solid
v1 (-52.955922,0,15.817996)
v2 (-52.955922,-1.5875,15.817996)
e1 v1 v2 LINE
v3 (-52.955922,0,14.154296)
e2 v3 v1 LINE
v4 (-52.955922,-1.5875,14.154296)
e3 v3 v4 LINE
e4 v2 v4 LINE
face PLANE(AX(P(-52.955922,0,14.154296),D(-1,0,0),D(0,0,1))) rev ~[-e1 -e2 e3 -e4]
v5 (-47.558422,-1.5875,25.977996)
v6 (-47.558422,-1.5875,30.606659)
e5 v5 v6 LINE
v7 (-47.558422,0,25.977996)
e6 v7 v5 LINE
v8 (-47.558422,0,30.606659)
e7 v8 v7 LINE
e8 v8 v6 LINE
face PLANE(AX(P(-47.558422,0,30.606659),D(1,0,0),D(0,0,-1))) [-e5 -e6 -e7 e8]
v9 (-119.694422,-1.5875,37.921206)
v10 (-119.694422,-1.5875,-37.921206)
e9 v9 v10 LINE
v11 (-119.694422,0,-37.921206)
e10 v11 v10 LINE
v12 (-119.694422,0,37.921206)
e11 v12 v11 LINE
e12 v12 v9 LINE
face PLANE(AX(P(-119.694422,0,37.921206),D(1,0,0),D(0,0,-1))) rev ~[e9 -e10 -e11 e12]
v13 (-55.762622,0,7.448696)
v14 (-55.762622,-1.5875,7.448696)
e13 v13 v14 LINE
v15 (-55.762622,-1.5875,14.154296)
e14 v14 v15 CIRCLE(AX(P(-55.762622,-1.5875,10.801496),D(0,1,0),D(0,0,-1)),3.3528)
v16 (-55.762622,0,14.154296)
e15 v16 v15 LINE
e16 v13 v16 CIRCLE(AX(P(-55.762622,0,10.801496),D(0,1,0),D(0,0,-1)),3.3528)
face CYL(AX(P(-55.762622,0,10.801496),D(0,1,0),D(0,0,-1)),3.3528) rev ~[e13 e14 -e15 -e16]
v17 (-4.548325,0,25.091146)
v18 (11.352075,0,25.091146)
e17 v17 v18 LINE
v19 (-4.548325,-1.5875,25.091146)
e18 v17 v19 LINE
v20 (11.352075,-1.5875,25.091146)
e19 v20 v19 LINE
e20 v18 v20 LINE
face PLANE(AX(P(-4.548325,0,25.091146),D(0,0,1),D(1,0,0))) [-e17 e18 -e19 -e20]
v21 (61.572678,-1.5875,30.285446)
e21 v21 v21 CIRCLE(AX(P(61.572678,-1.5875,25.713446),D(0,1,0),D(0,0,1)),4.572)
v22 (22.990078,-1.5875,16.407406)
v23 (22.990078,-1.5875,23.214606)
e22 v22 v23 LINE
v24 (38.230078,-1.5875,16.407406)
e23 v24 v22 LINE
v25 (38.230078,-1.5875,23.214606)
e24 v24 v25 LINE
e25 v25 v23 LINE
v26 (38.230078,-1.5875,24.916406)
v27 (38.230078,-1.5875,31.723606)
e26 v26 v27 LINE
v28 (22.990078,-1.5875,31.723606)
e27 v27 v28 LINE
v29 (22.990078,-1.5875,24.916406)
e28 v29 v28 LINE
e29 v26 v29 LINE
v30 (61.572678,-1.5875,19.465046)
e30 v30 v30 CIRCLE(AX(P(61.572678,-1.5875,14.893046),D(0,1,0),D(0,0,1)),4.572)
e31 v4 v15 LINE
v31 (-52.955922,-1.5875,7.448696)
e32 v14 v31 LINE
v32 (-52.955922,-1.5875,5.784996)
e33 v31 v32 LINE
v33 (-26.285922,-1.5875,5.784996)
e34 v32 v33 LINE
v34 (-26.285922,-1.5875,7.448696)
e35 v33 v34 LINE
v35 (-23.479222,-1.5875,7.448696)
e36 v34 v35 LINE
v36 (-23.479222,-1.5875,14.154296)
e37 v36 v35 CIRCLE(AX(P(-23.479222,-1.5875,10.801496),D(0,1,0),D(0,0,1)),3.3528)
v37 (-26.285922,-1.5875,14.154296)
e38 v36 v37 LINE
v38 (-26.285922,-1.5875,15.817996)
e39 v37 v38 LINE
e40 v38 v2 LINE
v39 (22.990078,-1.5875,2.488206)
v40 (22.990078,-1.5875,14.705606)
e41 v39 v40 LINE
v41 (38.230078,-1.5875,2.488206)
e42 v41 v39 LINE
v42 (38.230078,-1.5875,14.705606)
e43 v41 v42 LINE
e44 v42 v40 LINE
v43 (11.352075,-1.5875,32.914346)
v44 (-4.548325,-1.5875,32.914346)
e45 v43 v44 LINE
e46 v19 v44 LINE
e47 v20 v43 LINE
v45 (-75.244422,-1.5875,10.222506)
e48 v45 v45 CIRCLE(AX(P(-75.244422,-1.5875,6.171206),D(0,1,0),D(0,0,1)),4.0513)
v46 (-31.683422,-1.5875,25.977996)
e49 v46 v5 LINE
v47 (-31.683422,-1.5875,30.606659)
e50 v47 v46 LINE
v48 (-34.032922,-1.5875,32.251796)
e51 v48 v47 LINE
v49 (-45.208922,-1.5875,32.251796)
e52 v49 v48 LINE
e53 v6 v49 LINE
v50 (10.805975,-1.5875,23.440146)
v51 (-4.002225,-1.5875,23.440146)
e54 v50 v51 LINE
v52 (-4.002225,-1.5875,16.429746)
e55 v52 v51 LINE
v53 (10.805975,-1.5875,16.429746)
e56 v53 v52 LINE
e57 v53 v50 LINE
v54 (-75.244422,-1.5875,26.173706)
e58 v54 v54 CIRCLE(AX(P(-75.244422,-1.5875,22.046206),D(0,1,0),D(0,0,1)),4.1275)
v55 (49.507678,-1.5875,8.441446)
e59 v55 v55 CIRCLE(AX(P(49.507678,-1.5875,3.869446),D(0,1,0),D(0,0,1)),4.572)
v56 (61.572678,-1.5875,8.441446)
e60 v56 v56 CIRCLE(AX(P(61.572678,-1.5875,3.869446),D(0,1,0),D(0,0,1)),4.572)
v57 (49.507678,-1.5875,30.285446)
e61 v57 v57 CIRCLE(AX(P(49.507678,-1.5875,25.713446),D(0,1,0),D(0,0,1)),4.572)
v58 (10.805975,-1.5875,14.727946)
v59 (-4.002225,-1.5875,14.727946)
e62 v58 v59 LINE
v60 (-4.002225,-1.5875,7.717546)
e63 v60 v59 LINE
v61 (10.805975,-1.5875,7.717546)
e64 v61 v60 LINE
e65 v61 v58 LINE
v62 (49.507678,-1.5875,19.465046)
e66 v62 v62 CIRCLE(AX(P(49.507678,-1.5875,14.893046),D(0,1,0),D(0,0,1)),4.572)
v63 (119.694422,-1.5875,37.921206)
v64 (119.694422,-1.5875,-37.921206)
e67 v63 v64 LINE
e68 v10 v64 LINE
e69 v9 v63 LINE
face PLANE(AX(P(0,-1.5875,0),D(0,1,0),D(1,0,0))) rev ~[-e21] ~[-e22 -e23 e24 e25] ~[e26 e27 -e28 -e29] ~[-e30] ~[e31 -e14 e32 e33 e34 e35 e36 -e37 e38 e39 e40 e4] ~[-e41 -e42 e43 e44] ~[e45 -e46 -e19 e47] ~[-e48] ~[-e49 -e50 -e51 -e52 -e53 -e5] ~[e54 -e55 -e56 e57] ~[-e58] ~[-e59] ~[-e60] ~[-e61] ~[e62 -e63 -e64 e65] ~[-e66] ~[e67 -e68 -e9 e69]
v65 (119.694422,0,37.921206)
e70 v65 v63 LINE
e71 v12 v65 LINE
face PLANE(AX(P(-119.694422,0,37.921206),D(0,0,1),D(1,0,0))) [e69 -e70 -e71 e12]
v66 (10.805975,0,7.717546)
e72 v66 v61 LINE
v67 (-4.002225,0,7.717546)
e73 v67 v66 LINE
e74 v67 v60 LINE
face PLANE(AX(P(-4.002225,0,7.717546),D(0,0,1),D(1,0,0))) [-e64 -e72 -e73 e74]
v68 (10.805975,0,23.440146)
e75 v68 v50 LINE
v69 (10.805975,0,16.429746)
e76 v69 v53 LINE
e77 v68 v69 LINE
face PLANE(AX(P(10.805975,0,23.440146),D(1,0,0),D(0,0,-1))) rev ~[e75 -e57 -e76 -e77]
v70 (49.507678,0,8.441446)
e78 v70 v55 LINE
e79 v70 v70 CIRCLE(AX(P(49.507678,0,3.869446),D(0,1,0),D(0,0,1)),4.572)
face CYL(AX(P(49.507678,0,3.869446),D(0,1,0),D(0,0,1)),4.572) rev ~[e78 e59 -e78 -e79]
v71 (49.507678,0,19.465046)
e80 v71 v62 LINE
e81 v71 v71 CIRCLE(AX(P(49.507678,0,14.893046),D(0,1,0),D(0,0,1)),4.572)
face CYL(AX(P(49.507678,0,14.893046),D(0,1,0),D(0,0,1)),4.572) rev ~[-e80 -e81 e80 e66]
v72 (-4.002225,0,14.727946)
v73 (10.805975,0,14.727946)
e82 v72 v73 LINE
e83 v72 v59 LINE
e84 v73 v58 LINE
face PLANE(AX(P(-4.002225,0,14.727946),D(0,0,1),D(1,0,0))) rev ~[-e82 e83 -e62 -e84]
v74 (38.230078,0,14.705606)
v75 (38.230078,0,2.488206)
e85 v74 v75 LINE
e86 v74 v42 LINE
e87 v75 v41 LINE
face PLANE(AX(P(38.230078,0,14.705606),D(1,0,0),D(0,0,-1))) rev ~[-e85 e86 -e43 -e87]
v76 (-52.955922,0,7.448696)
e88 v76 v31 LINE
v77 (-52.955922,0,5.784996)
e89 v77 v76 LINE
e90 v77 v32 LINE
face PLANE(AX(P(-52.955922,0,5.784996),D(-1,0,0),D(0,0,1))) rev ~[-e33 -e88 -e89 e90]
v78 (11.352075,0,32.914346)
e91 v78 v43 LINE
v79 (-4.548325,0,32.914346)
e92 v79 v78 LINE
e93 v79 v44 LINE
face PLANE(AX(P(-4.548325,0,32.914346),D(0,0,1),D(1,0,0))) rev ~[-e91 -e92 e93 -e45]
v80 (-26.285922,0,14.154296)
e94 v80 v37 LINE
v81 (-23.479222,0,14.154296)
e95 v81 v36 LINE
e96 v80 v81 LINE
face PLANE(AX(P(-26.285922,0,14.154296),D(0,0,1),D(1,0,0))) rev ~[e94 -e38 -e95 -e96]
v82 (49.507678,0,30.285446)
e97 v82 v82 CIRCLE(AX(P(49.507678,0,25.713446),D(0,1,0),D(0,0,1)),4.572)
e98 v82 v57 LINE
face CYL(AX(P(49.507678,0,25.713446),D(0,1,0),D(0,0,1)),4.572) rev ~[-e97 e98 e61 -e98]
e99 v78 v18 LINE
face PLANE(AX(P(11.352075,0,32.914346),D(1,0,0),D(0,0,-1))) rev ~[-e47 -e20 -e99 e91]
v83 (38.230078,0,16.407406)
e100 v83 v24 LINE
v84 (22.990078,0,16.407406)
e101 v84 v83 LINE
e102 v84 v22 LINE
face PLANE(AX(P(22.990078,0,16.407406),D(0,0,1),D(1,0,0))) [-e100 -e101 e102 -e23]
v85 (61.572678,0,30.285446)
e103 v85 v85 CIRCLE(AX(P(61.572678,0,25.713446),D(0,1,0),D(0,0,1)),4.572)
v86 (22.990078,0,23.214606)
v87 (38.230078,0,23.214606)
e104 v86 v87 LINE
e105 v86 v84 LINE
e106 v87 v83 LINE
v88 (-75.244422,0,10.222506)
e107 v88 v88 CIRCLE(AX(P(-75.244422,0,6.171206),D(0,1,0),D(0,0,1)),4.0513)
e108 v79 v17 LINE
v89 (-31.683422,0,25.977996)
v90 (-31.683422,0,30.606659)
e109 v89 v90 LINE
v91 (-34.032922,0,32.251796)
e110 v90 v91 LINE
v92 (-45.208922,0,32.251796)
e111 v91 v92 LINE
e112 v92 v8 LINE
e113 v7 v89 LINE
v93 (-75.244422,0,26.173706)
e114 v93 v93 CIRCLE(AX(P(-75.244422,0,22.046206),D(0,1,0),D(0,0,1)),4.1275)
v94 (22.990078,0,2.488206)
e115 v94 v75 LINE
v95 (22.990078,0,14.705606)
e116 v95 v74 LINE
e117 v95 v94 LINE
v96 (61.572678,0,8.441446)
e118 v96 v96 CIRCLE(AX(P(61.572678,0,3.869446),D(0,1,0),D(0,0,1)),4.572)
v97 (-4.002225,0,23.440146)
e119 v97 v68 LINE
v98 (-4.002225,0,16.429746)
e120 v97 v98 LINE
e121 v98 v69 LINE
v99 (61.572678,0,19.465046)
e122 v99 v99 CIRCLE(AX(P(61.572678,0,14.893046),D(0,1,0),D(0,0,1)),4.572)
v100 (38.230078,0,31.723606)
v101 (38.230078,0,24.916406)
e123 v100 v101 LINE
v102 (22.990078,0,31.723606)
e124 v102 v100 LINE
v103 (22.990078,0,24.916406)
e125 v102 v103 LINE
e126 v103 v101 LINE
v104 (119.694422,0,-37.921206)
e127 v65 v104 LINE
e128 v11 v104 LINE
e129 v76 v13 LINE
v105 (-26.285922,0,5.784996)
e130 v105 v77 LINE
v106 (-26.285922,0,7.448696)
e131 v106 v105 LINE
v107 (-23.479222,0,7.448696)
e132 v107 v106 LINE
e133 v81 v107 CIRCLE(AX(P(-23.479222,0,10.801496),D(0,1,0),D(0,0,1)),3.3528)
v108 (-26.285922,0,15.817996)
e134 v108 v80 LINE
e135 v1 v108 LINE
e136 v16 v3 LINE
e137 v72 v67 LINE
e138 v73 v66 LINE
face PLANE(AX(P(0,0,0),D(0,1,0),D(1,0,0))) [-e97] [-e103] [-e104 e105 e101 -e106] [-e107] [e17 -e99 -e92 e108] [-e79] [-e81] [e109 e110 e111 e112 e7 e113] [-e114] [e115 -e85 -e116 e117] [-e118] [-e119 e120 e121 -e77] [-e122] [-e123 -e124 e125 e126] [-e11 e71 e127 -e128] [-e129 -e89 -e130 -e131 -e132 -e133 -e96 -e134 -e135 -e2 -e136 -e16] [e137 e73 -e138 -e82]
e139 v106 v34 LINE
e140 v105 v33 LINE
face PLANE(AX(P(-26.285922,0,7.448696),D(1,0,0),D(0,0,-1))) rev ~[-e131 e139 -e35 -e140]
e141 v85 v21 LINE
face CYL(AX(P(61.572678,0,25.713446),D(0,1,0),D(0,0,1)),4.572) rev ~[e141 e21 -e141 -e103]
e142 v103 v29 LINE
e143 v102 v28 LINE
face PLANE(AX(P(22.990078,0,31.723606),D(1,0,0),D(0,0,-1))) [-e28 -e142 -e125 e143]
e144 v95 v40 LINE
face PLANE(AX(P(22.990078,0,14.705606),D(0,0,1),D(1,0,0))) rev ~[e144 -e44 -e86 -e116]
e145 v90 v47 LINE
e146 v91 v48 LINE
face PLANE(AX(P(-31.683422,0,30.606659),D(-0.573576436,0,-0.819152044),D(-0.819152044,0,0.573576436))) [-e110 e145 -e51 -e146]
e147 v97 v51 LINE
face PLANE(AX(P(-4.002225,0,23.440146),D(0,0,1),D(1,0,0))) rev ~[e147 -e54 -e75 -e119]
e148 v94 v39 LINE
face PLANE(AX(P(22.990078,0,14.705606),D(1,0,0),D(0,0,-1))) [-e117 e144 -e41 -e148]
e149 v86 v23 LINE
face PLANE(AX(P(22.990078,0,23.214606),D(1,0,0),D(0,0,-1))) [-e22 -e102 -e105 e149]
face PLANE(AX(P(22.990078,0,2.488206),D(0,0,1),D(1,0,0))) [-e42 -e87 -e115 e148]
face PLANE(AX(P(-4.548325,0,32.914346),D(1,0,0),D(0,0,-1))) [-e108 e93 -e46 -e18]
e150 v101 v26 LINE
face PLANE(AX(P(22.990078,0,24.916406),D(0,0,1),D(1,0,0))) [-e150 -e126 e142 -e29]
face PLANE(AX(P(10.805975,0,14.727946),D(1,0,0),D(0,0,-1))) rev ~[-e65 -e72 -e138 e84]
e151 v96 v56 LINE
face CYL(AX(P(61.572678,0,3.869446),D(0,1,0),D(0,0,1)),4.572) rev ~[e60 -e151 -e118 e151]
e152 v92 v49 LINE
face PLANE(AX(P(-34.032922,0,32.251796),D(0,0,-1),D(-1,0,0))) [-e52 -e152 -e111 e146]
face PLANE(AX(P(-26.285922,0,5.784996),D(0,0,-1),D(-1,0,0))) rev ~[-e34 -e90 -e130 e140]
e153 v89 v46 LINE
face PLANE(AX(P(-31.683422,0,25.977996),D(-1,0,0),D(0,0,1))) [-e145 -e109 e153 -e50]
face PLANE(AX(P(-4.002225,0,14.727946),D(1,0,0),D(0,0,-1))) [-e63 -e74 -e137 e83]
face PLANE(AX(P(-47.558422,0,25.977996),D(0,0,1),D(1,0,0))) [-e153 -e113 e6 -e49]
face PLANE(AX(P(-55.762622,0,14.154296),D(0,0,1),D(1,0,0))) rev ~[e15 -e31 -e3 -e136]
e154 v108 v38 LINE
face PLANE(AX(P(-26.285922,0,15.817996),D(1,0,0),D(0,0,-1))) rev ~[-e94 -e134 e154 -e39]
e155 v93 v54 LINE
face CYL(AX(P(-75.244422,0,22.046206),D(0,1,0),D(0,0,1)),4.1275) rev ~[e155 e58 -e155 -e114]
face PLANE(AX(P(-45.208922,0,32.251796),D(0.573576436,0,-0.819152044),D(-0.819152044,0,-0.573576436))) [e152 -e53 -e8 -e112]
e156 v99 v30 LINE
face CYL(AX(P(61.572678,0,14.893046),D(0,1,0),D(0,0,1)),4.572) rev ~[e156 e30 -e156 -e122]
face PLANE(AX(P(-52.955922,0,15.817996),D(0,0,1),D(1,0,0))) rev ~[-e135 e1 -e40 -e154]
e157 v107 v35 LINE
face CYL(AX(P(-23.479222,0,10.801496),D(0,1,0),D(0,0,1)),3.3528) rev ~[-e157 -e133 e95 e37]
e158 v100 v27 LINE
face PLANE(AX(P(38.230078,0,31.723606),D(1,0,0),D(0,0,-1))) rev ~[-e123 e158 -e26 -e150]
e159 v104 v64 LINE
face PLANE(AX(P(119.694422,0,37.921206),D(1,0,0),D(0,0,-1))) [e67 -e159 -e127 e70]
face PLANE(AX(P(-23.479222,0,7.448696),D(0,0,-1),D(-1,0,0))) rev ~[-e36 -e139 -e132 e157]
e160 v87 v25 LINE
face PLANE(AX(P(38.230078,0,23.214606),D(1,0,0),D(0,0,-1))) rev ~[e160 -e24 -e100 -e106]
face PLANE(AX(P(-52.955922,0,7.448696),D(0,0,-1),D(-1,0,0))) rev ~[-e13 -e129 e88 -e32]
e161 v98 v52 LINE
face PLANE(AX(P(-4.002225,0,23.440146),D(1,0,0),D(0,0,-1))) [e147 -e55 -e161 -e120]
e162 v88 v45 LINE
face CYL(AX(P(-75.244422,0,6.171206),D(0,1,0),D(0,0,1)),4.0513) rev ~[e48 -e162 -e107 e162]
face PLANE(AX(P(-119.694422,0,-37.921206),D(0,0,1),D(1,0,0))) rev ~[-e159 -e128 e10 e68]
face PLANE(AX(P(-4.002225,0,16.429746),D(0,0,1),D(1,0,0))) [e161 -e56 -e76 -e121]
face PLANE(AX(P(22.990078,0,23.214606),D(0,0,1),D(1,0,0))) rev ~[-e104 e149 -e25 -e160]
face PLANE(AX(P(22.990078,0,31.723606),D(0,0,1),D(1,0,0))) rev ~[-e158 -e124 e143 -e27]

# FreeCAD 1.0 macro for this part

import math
import FreeCAD as App
import Part
import Sketcher
Q = App.Units.Quantity

doc = App.newDocument("Part")
body = doc.addObject("PartDesign::Body", "Body")

# Sketch on XZ plane
sketch1 = body.newObject("Sketcher::SketchObject", "Sketch")
sketch1.AttachmentSupport = (doc.getObject("XZ_Plane"), [""])
sketch1.MapMode = "FlatFace"
sketch1.addGeometry([
    Part.LineSegment(App.Vector(-120, -38, 0), App.Vector(-120, 38, 0)),
    Part.LineSegment(App.Vector(-120, 38, 0), App.Vector(120, 38, 0)),
    Part.LineSegment(App.Vector(120, 38, 0), App.Vector(120, -38, 0)),
    Part.LineSegment(App.Vector(120, -38, 0), App.Vector(-120, -38, 0)),
], False)
sketch1.addConstraint([
    Sketcher.Constraint("Coincident", 0, 2, 1, 1),
    Sketcher.Constraint("Coincident", 1, 2, 2, 1),
    Sketcher.Constraint("Coincident", 2, 2, 3, 1),
    Sketcher.Constraint("Coincident", 3, 2, 0, 1),
    Sketcher.Constraint("Vertical", 0),
    Sketcher.Constraint("Horizontal", 1),
    Sketcher.Constraint("Vertical", 2),
    Sketcher.Constraint("Horizontal", 3),
    Sketcher.Constraint("Symmetric", 0, 2, 2, 2, -1, 1),
    Sketcher.Constraint("DistanceY", 0, 1, 0, 2, 75.842411),
    Sketcher.Constraint("DistanceX", 1, 1, 1, 2, 239.388844),
])
pad1 = body.newObject("PartDesign::Pad", "Pad")
pad1.Profile = sketch1
pad1.Length = Q("0.0625 in")

# Sketch on XZ plane
sketch2 = body.newObject("Sketcher::SketchObject", "Sketch001")
sketch2.AttachmentSupport = (doc.getObject("XZ_Plane"), [""])
sketch2.MapMode = "FlatFace"
sketch2.addGeometry(Part.Circle(App.Vector(-75.2, 22, 0), App.Vector(0, 0, 1), 4.1), False)
sketch2.addConstraint([
    Sketcher.Constraint("Diameter", 0, Q("0.325 in")),
    Sketcher.Constraint("DistanceX", 0, 3, -1, 1, 75.244422),
    Sketcher.Constraint("DistanceY", -1, 1, 0, 3, 22.046206),
])
pocket1 = body.newObject("PartDesign::Pocket", "Pocket")
pocket1.Profile = sketch2
pocket1.Type = "UpToFirst"
pocket1.Reversed = True

# Sketch on XZ plane
sketch3 = body.newObject("Sketcher::SketchObject", "Sketch002")
sketch3.AttachmentSupport = (doc.getObject("XZ_Plane"), [""])
sketch3.MapMode = "FlatFace"
sketch3.addGeometry(Part.Circle(App.Vector(49.5, 25.7, 0), App.Vector(0, 0, 1), 4.6), False)
sketch3.addConstraint([
    Sketcher.Constraint("Diameter", 0, Q("0.36 in")),
    Sketcher.Constraint("DistanceX", -1, 1, 0, 3, 49.507678),
    Sketcher.Constraint("DistanceY", -1, 1, 0, 3, 25.713446),
])
pocket2 = body.newObject("PartDesign::Pocket", "Pocket001")
pocket2.Profile = sketch3
pocket2.Type = "UpToFirst"
pocket2.Reversed = True

# Sketch on XZ plane
sketch4 = body.newObject("Sketcher::SketchObject", "Sketch003")
sketch4.AttachmentSupport = (doc.getObject("XZ_Plane"), [""])
sketch4.MapMode = "FlatFace"
sketch4.addGeometry(Part.Circle(App.Vector(-75.2, 6.2, 0), App.Vector(0, 0, 1), 4.1), False)
sketch4.addConstraint([
    Sketcher.Constraint("Diameter", 0, Q("0.319 in")),
    Sketcher.Constraint("DistanceX", 0, 3, -1, 1, 75.244422),
    Sketcher.Constraint("DistanceY", -1, 1, 0, 3, 6.171206),
])
pocket3 = body.newObject("PartDesign::Pocket", "Pocket002")
pocket3.Profile = sketch4
pocket3.Type = "UpToFirst"
pocket3.Reversed = True

# Sketch on XZ plane
sketch5 = body.newObject("Sketcher::SketchObject", "Sketch004")
sketch5.AttachmentSupport = (doc.getObject("XZ_Plane"), [""])
sketch5.MapMode = "FlatFace"
sketch5.addGeometry(Part.Circle(App.Vector(49.5, 3.9, 0), App.Vector(0, 0, 1), 4.6), False)
sketch5.addConstraint([
    Sketcher.Constraint("Diameter", 0, Q("0.36 in")),
    Sketcher.Constraint("DistanceX", -1, 1, 0, 3, 49.507678),
    Sketcher.Constraint("DistanceY", -1, 1, 0, 3, 3.869446),
])
pocket4 = body.newObject("PartDesign::Pocket", "Pocket003")
pocket4.Profile = sketch5
pocket4.Type = "UpToFirst"
pocket4.Reversed = True

# Sketch on XZ plane
sketch6 = body.newObject("Sketcher::SketchObject", "Sketch005")
sketch6.AttachmentSupport = (doc.getObject("XZ_Plane"), [""])
sketch6.MapMode = "FlatFace"
sketch6.addGeometry(Part.Circle(App.Vector(61.6, 3.9, 0), App.Vector(0, 0, 1), 4.6), False)
sketch6.addConstraint([
    Sketcher.Constraint("Diameter", 0, Q("0.36 in")),
    Sketcher.Constraint("DistanceX", -1, 1, 0, 3, 61.572678),
    Sketcher.Constraint("DistanceY", -1, 1, 0, 3, 3.869446),
])
pocket5 = body.newObject("PartDesign::Pocket", "Pocket004")
pocket5.Profile = sketch6
pocket5.Type = "UpToFirst"
pocket5.Reversed = True

# Sketch on XZ plane
sketch7 = body.newObject("Sketcher::SketchObject", "Sketch006")
sketch7.AttachmentSupport = (doc.getObject("XZ_Plane"), [""])
sketch7.MapMode = "FlatFace"
sketch7.addGeometry(Part.Circle(App.Vector(49.5, 14.9, 0), App.Vector(0, 0, 1), 4.6), False)
sketch7.addConstraint([
    Sketcher.Constraint("Diameter", 0, Q("0.36 in")),
    Sketcher.Constraint("DistanceX", -1, 1, 0, 3, 49.507678),
    Sketcher.Constraint("DistanceY", -1, 1, 0, 3, 14.893046),
])
pocket6 = body.newObject("PartDesign::Pocket", "Pocket005")
pocket6.Profile = sketch7
pocket6.Type = "UpToFirst"
pocket6.Reversed = True

# Sketch on XZ plane
sketch8 = body.newObject("Sketcher::SketchObject", "Sketch007")
sketch8.AttachmentSupport = (doc.getObject("XZ_Plane"), [""])
sketch8.MapMode = "FlatFace"
sketch8.addGeometry(Part.Circle(App.Vector(61.6, 14.9, 0), App.Vector(0, 0, 1), 4.6), False)
sketch8.addConstraint([
    Sketcher.Constraint("Diameter", 0, Q("0.36 in")),
    Sketcher.Constraint("DistanceX", -1, 1, 0, 3, 61.572678),
    Sketcher.Constraint("DistanceY", -1, 1, 0, 3, 14.893046),
])
pocket7 = body.newObject("PartDesign::Pocket", "Pocket006")
pocket7.Profile = sketch8
pocket7.Type = "UpToFirst"
pocket7.Reversed = True

# Sketch on XZ plane
sketch9 = body.newObject("Sketcher::SketchObject", "Sketch008")
sketch9.AttachmentSupport = (doc.getObject("XZ_Plane"), [""])
sketch9.MapMode = "FlatFace"
sketch9.addGeometry(Part.Circle(App.Vector(61.6, 25.7, 0), App.Vector(0, 0, 1), 4.6), False)
sketch9.addConstraint([
    Sketcher.Constraint("Diameter", 0, Q("0.36 in")),
    Sketcher.Constraint("DistanceX", -1, 1, 0, 3, 61.572678),
    Sketcher.Constraint("DistanceY", -1, 1, 0, 3, 25.713446),
])
pocket8 = body.newObject("PartDesign::Pocket", "Pocket007")
pocket8.Profile = sketch9
pocket8.Type = "UpToFirst"
pocket8.Reversed = True

# Sketch on XZ plane
sketch10 = body.newObject("Sketcher::SketchObject", "Sketch009")
sketch10.AttachmentSupport = (doc.getObject("XZ_Plane"), [""])
sketch10.MapMode = "FlatFace"
sketch10.addGeometry([
    Part.LineSegment(App.Vector(-31.7, 26, 0), App.Vector(-47.6, 26, 0)),  # 0
    Part.LineSegment(App.Vector(-47.6, 26, 0), App.Vector(-47.6, 30.6, 0)),  # 1
    Part.LineSegment(App.Vector(-47.6, 30.6, 0), App.Vector(-45.2, 32.3, 0)),  # 2
    Part.LineSegment(App.Vector(-45.2, 32.3, 0), App.Vector(-34, 32.3, 0)),  # 3
    Part.LineSegment(App.Vector(-34, 32.3, 0), App.Vector(-31.7, 30.6, 0)),  # 4
    Part.LineSegment(App.Vector(-31.7, 30.6, 0), App.Vector(-31.7, 26, 0)),  # 5
], False)
sketch10.addConstraint([
    Sketcher.Constraint("Coincident", 0, 2, 1, 1),
    Sketcher.Constraint("Coincident", 1, 2, 2, 1),
    Sketcher.Constraint("Coincident", 2, 2, 3, 1),
    Sketcher.Constraint("Coincident", 3, 2, 4, 1),
    Sketcher.Constraint("Coincident", 4, 2, 5, 1),
    Sketcher.Constraint("Coincident", 5, 2, 0, 1),
    Sketcher.Constraint("Horizontal", 0),
    Sketcher.Constraint("Vertical", 1),
    Sketcher.Constraint("Horizontal", 3),
    Sketcher.Constraint("Vertical", 5),
    Sketcher.Constraint("Horizontal", 1, 2, 4, 2),
    Sketcher.Constraint("Equal", 2, 4),
    Sketcher.Constraint("Angle", 2, Q("35 deg")),
    Sketcher.Constraint("DistanceX", 3, 1, 3, 2, Q("0.44 in")),
    Sketcher.Constraint("DistanceX", 0, 2, 0, 1, Q("0.625 in")),
    Sketcher.Constraint("DistanceY", 0, 2, 2, 2, Q("0.247 in")),
    Sketcher.Constraint("DistanceX", 0, 2, -1, 1, 47.558422),
    Sketcher.Constraint("DistanceY", -1, 1, 1, 2, 30.606659),
])
pocket9 = body.newObject("PartDesign::Pocket", "Pocket008")
pocket9.Profile = sketch10
pocket9.Type = "UpToFirst"
pocket9.Reversed = True

# Sketch on XZ plane
sketch11 = body.newObject("Sketcher::SketchObject", "Sketch010")
sketch11.AttachmentSupport = (doc.getObject("XZ_Plane"), [""])
sketch11.MapMode = "FlatFace"
sketch11.addGeometry([
    Part.LineSegment(App.Vector(-53, 14.2, 0), App.Vector(-53, 15.8, 0)),  # 0
    Part.LineSegment(App.Vector(-53, 15.8, 0), App.Vector(-26.3, 15.8, 0)),  # 1
    Part.LineSegment(App.Vector(-26.3, 15.8, 0), App.Vector(-26.3, 14.2, 0)),  # 2
    Part.LineSegment(App.Vector(-26.3, 14.2, 0), App.Vector(-23.5, 14.2, 0)),  # 3
    Part.ArcOfCircle(Part.Circle(App.Vector(-23.5, 10.8, 0), App.Vector(0, 0, 1), 3.4), math.radians(-90), math.radians(90)),  # 4
    Part.LineSegment(App.Vector(-23.5, 7.4, 0), App.Vector(-26.3, 7.4, 0)),  # 5
    Part.LineSegment(App.Vector(-26.3, 7.4, 0), App.Vector(-26.3, 5.8, 0)),  # 6
    Part.LineSegment(App.Vector(-26.3, 5.8, 0), App.Vector(-53, 5.8, 0)),  # 7
    Part.LineSegment(App.Vector(-53, 5.8, 0), App.Vector(-53, 7.4, 0)),  # 8
    Part.LineSegment(App.Vector(-53, 7.4, 0), App.Vector(-55.8, 7.4, 0)),  # 9
    Part.ArcOfCircle(Part.Circle(App.Vector(-55.8, 10.8, 0), App.Vector(0, 0, 1), 3.4), math.radians(90), math.radians(270)),  # 10
    Part.LineSegment(App.Vector(-55.8, 14.2, 0), App.Vector(-53, 14.2, 0)),  # 11
], False)
sketch11.addConstraint([
    Sketcher.Constraint("Coincident", 0, 2, 1, 1),
    Sketcher.Constraint("Coincident", 1, 2, 2, 1),
    Sketcher.Constraint("Coincident", 2, 2, 3, 1),
    Sketcher.Constraint("Tangent", 3, 2, 4, 2),
    Sketcher.Constraint("Tangent", 4, 1, 5, 1),
    Sketcher.Constraint("Coincident", 5, 2, 6, 1),
    Sketcher.Constraint("Coincident", 6, 2, 7, 1),
    Sketcher.Constraint("Coincident", 7, 2, 8, 1),
    Sketcher.Constraint("Coincident", 8, 2, 9, 1),
    Sketcher.Constraint("Tangent", 9, 2, 10, 2),
    Sketcher.Constraint("Tangent", 10, 1, 11, 1),
    Sketcher.Constraint("Coincident", 11, 2, 0, 1),
    Sketcher.Constraint("Vertical", 0),
    Sketcher.Constraint("Horizontal", 1),
    Sketcher.Constraint("Vertical", 2),
    Sketcher.Constraint("Horizontal", 3),
    Sketcher.Constraint("Horizontal", 5),
    Sketcher.Constraint("Vertical", 6),
    Sketcher.Constraint("Horizontal", 7),
    Sketcher.Constraint("Vertical", 8),
    Sketcher.Constraint("Horizontal", 9),
    Sketcher.Constraint("Horizontal", 11),
    Sketcher.Constraint("Equal", 4, 10),
    Sketcher.Constraint("Horizontal", 4, 3, 10, 3),
    Sketcher.Constraint("Vertical", 2, 2, 5, 2),
    Sketcher.Constraint("Vertical", 0, 2, 7, 2),
    Sketcher.Constraint("Equal", 5, 9),
    Sketcher.Constraint("Equal", 2, 6),
    Sketcher.Constraint("Radius", 4, Q("0.132 in")),
    Sketcher.Constraint("DistanceX", 1, 1, 1, 2, Q("1.05 in")),
    Sketcher.Constraint("DistanceX", 3, 1, 3, 2, Q("0.1105 in")),
    Sketcher.Constraint("DistanceY", 0, 1, 0, 2, Q("0.0655 in")),
    Sketcher.Constraint("DistanceX", 4, 3, -1, 1, 23.479222),
    Sketcher.Constraint("DistanceY", -1, 1, 4, 3, 10.801496),
])
pocket10 = body.newObject("PartDesign::Pocket", "Pocket009")
pocket10.Profile = sketch11
pocket10.Type = "UpToFirst"
pocket10.Reversed = True

# Sketch on XZ plane
sketch12 = body.newObject("Sketcher::SketchObject", "Sketch011")
sketch12.AttachmentSupport = (doc.getObject("XZ_Plane"), [""])
sketch12.MapMode = "FlatFace"
sketch12.addGeometry([
    Part.LineSegment(App.Vector(-4, 8, 0), App.Vector(-4, 15, 0)),
    Part.LineSegment(App.Vector(-4, 15, 0), App.Vector(11, 15, 0)),
    Part.LineSegment(App.Vector(11, 15, 0), App.Vector(11, 8, 0)),
    Part.LineSegment(App.Vector(11, 8, 0), App.Vector(-4, 8, 0)),
], False)
sketch12.addConstraint([
    Sketcher.Constraint("Coincident", 0, 2, 1, 1),
    Sketcher.Constraint("Coincident", 1, 2, 2, 1),
    Sketcher.Constraint("Coincident", 2, 2, 3, 1),
    Sketcher.Constraint("Coincident", 3, 2, 0, 1),
    Sketcher.Constraint("Vertical", 0),
    Sketcher.Constraint("Horizontal", 1),
    Sketcher.Constraint("Vertical", 2),
    Sketcher.Constraint("Horizontal", 3),
    Sketcher.Constraint("DistanceX", 1, 1, 1, 2, Q("0.583 in")),
    Sketcher.Constraint("DistanceY", 0, 1, 0, 2, Q("0.276 in")),
    Sketcher.Constraint("DistanceX", 0, 2, -1, 1, 4.002225),
    Sketcher.Constraint("DistanceY", -1, 1, 0, 2, 14.727946),
])
pocket11 = body.newObject("PartDesign::Pocket", "Pocket010")
pocket11.Profile = sketch12
pocket11.Type = "UpToFirst"
pocket11.Reversed = True

# Sketch on XZ plane
sketch13 = body.newObject("Sketcher::SketchObject", "Sketch012")
sketch13.AttachmentSupport = (doc.getObject("XZ_Plane"), [""])
sketch13.MapMode = "FlatFace"
sketch13.addGeometry([
    Part.LineSegment(App.Vector(-4, 16, 0), App.Vector(-4, 23, 0)),
    Part.LineSegment(App.Vector(-4, 23, 0), App.Vector(11, 23, 0)),
    Part.LineSegment(App.Vector(11, 23, 0), App.Vector(11, 16, 0)),
    Part.LineSegment(App.Vector(11, 16, 0), App.Vector(-4, 16, 0)),
], False)
sketch13.addConstraint([
    Sketcher.Constraint("Coincident", 0, 2, 1, 1),
    Sketcher.Constraint("Coincident", 1, 2, 2, 1),
    Sketcher.Constraint("Coincident", 2, 2, 3, 1),
    Sketcher.Constraint("Coincident", 3, 2, 0, 1),
    Sketcher.Constraint("Vertical", 0),
    Sketcher.Constraint("Horizontal", 1),
    Sketcher.Constraint("Vertical", 2),
    Sketcher.Constraint("Horizontal", 3),
    Sketcher.Constraint("DistanceX", 1, 1, 1, 2, Q("0.583 in")),
    Sketcher.Constraint("DistanceY", 0, 1, 0, 2, Q("0.276 in")),
    Sketcher.Constraint("DistanceX", 0, 2, -1, 1, 4.002225),
    Sketcher.Constraint("DistanceY", -1, 1, 0, 2, 23.440146),
])
pocket12 = body.newObject("PartDesign::Pocket", "Pocket011")
pocket12.Profile = sketch13
pocket12.Type = "UpToFirst"
pocket12.Reversed = True

# Sketch on XZ plane
sketch14 = body.newObject("Sketcher::SketchObject", "Sketch013")
sketch14.AttachmentSupport = (doc.getObject("XZ_Plane"), [""])
sketch14.MapMode = "FlatFace"
sketch14.addGeometry([
    Part.LineSegment(App.Vector(-5, 25, 0), App.Vector(-5, 33, 0)),
    Part.LineSegment(App.Vector(-5, 33, 0), App.Vector(11, 33, 0)),
    Part.LineSegment(App.Vector(11, 33, 0), App.Vector(11, 25, 0)),
    Part.LineSegment(App.Vector(11, 25, 0), App.Vector(-5, 25, 0)),
], False)
sketch14.addConstraint([
    Sketcher.Constraint("Coincident", 0, 2, 1, 1),
    Sketcher.Constraint("Coincident", 1, 2, 2, 1),
    Sketcher.Constraint("Coincident", 2, 2, 3, 1),
    Sketcher.Constraint("Coincident", 3, 2, 0, 1),
    Sketcher.Constraint("Vertical", 0),
    Sketcher.Constraint("Horizontal", 1),
    Sketcher.Constraint("Vertical", 2),
    Sketcher.Constraint("Horizontal", 3),
    Sketcher.Constraint("DistanceX", 1, 1, 1, 2, Q("0.626 in")),
    Sketcher.Constraint("DistanceY", 0, 1, 0, 2, Q("0.308 in")),
    Sketcher.Constraint("DistanceX", 0, 2, -1, 1, 4.548325),
    Sketcher.Constraint("DistanceY", -1, 1, 0, 2, 32.914346),
])
pocket13 = body.newObject("PartDesign::Pocket", "Pocket012")
pocket13.Profile = sketch14
pocket13.Type = "UpToFirst"
pocket13.Reversed = True

# Sketch on XZ plane
sketch15 = body.newObject("Sketcher::SketchObject", "Sketch014")
sketch15.AttachmentSupport = (doc.getObject("XZ_Plane"), [""])
sketch15.MapMode = "FlatFace"
sketch15.addGeometry([
    Part.LineSegment(App.Vector(23, 2, 0), App.Vector(23, 15, 0)),
    Part.LineSegment(App.Vector(23, 15, 0), App.Vector(38, 15, 0)),
    Part.LineSegment(App.Vector(38, 15, 0), App.Vector(38, 2, 0)),
    Part.LineSegment(App.Vector(38, 2, 0), App.Vector(23, 2, 0)),
], False)
sketch15.addConstraint([
    Sketcher.Constraint("Coincident", 0, 2, 1, 1),
    Sketcher.Constraint("Coincident", 1, 2, 2, 1),
    Sketcher.Constraint("Coincident", 2, 2, 3, 1),
    Sketcher.Constraint("Coincident", 3, 2, 0, 1),
    Sketcher.Constraint("Vertical", 0),
    Sketcher.Constraint("Horizontal", 1),
    Sketcher.Constraint("Vertical", 2),
    Sketcher.Constraint("Horizontal", 3),
    Sketcher.Constraint("DistanceX", 1, 1, 1, 2, Q("0.6 in")),
    Sketcher.Constraint("DistanceY", 0, 1, 0, 2, Q("0.481 in")),
    Sketcher.Constraint("DistanceX", -1, 1, 0, 2, 22.990078),
    Sketcher.Constraint("DistanceY", -1, 1, 0, 2, 14.705606),
])
pocket14 = body.newObject("PartDesign::Pocket", "Pocket013")
pocket14.Profile = sketch15
pocket14.Type = "UpToFirst"
pocket14.Reversed = True

# Sketch on XZ plane
sketch16 = body.newObject("Sketcher::SketchObject", "Sketch015")
sketch16.AttachmentSupport = (doc.getObject("XZ_Plane"), [""])
sketch16.MapMode = "FlatFace"
sketch16.addGeometry([
    Part.LineSegment(App.Vector(23, 16, 0), App.Vector(23, 23, 0)),
    Part.LineSegment(App.Vector(23, 23, 0), App.Vector(38, 23, 0)),
    Part.LineSegment(App.Vector(38, 23, 0), App.Vector(38, 16, 0)),
    Part.LineSegment(App.Vector(38, 16, 0), App.Vector(23, 16, 0)),
], False)
sketch16.addConstraint([
    Sketcher.Constraint("Coincident", 0, 2, 1, 1),
    Sketcher.Constraint("Coincident", 1, 2, 2, 1),
    Sketcher.Constraint("Coincident", 2, 2, 3, 1),
    Sketcher.Constraint("Coincident", 3, 2, 0, 1),
    Sketcher.Constraint("Vertical", 0),
    Sketcher.Constraint("Horizontal", 1),
    Sketcher.Constraint("Vertical", 2),
    Sketcher.Constraint("Horizontal", 3),
    Sketcher.Constraint("DistanceX", 1, 1, 1, 2, Q("0.6 in")),
    Sketcher.Constraint("DistanceY", 0, 1, 0, 2, Q("0.268 in")),
    Sketcher.Constraint("DistanceX", -1, 1, 0, 2, 22.990078),
    Sketcher.Constraint("DistanceY", -1, 1, 0, 2, 23.214606),
])
pocket15 = body.newObject("PartDesign::Pocket", "Pocket014")
pocket15.Profile = sketch16
pocket15.Type = "UpToFirst"
pocket15.Reversed = True

# Sketch on XZ plane
sketch17 = body.newObject("Sketcher::SketchObject", "Sketch016")
sketch17.AttachmentSupport = (doc.getObject("XZ_Plane"), [""])
sketch17.MapMode = "FlatFace"
sketch17.addGeometry([
    Part.LineSegment(App.Vector(23, 25, 0), App.Vector(23, 32, 0)),
    Part.LineSegment(App.Vector(23, 32, 0), App.Vector(38, 32, 0)),
    Part.LineSegment(App.Vector(38, 32, 0), App.Vector(38, 25, 0)),
    Part.LineSegment(App.Vector(38, 25, 0), App.Vector(23, 25, 0)),
], False)
sketch17.addConstraint([
    Sketcher.Constraint("Coincident", 0, 2, 1, 1),
    Sketcher.Constraint("Coincident", 1, 2, 2, 1),
    Sketcher.Constraint("Coincident", 2, 2, 3, 1),
    Sketcher.Constraint("Coincident", 3, 2, 0, 1),
    Sketcher.Constraint("Vertical", 0),
    Sketcher.Constraint("Horizontal", 1),
    Sketcher.Constraint("Vertical", 2),
    Sketcher.Constraint("Horizontal", 3),
    Sketcher.Constraint("DistanceX", 1, 1, 1, 2, Q("0.6 in")),
    Sketcher.Constraint("DistanceY", 0, 1, 0, 2, Q("0.268 in")),
    Sketcher.Constraint("DistanceX", -1, 1, 0, 2, 22.990078),
    Sketcher.Constraint("DistanceY", -1, 1, 0, 2, 31.723606),
])
pocket16 = body.newObject("PartDesign::Pocket", "Pocket015")
pocket16.Profile = sketch17
pocket16.Type = "UpToFirst"
pocket16.Reversed = True

doc.recompute()
